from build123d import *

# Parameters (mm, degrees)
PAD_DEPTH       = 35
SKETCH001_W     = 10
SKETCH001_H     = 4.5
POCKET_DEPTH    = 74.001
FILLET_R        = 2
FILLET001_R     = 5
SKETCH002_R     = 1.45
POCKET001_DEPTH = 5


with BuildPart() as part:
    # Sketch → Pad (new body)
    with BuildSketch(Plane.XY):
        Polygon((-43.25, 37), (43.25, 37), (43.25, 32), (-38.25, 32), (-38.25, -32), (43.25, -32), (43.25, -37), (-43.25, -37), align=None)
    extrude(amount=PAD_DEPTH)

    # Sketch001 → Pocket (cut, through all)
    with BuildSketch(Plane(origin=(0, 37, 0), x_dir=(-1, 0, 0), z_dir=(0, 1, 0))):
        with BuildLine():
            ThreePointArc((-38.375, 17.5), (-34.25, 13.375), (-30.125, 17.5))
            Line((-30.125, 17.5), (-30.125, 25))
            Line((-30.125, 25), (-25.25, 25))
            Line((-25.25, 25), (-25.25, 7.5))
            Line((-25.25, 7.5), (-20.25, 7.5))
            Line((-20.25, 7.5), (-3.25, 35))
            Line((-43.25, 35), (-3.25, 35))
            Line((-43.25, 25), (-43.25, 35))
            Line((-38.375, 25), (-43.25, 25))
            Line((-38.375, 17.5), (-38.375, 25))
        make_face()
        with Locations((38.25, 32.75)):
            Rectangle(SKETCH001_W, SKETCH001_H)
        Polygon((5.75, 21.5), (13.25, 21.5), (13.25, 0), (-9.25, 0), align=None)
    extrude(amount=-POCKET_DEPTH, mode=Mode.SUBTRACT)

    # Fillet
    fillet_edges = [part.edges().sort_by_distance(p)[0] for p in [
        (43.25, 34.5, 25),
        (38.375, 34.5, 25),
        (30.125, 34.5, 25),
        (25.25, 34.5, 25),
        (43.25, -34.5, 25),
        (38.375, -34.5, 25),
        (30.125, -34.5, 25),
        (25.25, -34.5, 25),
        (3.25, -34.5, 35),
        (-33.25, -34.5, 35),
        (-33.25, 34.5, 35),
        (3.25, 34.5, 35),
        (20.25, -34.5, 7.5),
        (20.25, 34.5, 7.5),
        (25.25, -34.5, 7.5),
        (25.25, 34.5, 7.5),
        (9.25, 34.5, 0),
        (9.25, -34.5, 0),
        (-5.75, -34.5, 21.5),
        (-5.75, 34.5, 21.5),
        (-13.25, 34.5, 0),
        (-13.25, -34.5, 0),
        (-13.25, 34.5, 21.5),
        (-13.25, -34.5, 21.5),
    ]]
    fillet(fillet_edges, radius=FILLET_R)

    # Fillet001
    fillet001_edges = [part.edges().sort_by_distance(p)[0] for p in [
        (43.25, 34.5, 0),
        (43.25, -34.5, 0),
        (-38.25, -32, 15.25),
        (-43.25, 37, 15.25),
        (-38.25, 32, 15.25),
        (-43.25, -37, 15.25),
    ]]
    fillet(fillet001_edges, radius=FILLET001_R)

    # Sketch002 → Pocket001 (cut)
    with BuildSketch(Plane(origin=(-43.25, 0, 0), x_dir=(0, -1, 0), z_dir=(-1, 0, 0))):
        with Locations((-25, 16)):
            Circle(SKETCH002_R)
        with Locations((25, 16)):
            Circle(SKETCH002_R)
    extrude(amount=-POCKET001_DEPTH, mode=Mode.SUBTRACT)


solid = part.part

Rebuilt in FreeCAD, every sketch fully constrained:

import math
import FreeCAD as App
import Part
import Sketcher

V = App.Vector
Q = App.Units.Quantity


def edges_at(feature, points):
    """Names of the edges that pass closest to the given points."""
    edges = feature.Shape.Edges
    near = lambda p: min(range(len(edges)), key=lambda i: edges[i].distToShape(Part.Vertex(*p))[0])
    return sorted({f"Edge{near(p) + 1}" for p in points})

doc = App.newDocument("Part")
params = doc.addObject("Spreadsheet::Sheet", "Params")
for row, (alias, value) in enumerate([
    ("sketch1_height", "74 mm"),
    ("sketch1_height2", "5 mm"),
    ("sketch1_width", "86.5 mm"),
    ("sketch1_width2", "81.5 mm"),
    ("pad1_length", "35 mm"),
    ("sketch2_width", "5 mm"),
    ("sketch2_width2", "40 mm"),
    ("sketch2_width3", "10 mm"),
    ("sketch2_width4", "7.5 mm"),
    ("sketch2_width5", "22.5 mm"),
    ("fillet_radius", "2 mm"),
    ("fillet2_radius", "5 mm"),
    ("sketch3_diameter", "2.9 mm"),
    ("pocket2_length", "5 mm"),
], start=1):
    params.set(f"A{row}", alias)
    params.set(f"B{row}", "=" + value)
    params.setAlias(f"B{row}", alias)

body = doc.addObject("PartDesign::Body", "Body")

# Sketch on XY plane
sketch1 = body.newObject("Sketcher::SketchObject", "Sketch")
sketch1.AttachmentSupport = (doc.getObject("XY_Plane"), [""])
sketch1.MapMode = "FlatFace"
sketch1.addGeometry([
    Part.LineSegment(V(43, 37, 0), V(-43, 37, 0)),  # 0
    Part.LineSegment(V(-43, 37, 0), V(-43, -37, 0)),  # 1
    Part.LineSegment(V(-43, -37, 0), V(43, -37, 0)),  # 2
    Part.LineSegment(V(43, -37, 0), V(43, -32, 0)),  # 3
    Part.LineSegment(V(43, -32, 0), V(-38, -32, 0)),  # 4
    Part.LineSegment(V(-38, -32, 0), V(-38, 32, 0)),  # 5
    Part.LineSegment(V(-38, 32, 0), V(43, 32, 0)),  # 6
    Part.LineSegment(V(43, 32, 0), V(43, 37, 0)),  # 7
], False)
sketch1.addConstraint([
    Sketcher.Constraint("Coincident", 0, 2, 1, 1),
    Sketcher.Constraint("Coincident", 1, 2, 2, 1),
    Sketcher.Constraint("Coincident", 2, 2, 3, 1),
    Sketcher.Constraint("Coincident", 3, 2, 4, 1),
    Sketcher.Constraint("Coincident", 4, 2, 5, 1),
    Sketcher.Constraint("Coincident", 5, 2, 6, 1),
    Sketcher.Constraint("Coincident", 6, 2, 7, 1),
    Sketcher.Constraint("Coincident", 7, 2, 0, 1),
    Sketcher.Constraint("Horizontal", 0),
    Sketcher.Constraint("Vertical", 1),
    Sketcher.Constraint("Horizontal", 2),
    Sketcher.Constraint("Vertical", 3),
    Sketcher.Constraint("Horizontal", 4),
    Sketcher.Constraint("Vertical", 5),
    Sketcher.Constraint("Horizontal", 6),
    Sketcher.Constraint("Vertical", 7),
    Sketcher.Constraint("Symmetric", 0, 2, 2, 2, -1, 1),
    Sketcher.Constraint("Symmetric", 3, 2, 6, 2, -1),
    Sketcher.Constraint("DistanceY", 1, 2, 1, 1, Q("74 mm")),
    Sketcher.Constraint("DistanceY", 3, 1, 3, 2, Q("5 mm")),
    Sketcher.Constraint("DistanceX", 0, 2, 0, 1, Q("86.5 mm")),
    Sketcher.Constraint("DistanceX", 4, 2, 4, 1, Q("81.5 mm")),
])
sketch1.setExpression("Constraints[18]", "Params.sketch1_height")
sketch1.setExpression("Constraints[19]", "Params.sketch1_height2")
sketch1.setExpression("Constraints[20]", "Params.sketch1_width")
sketch1.setExpression("Constraints[21]", "Params.sketch1_width2")
pad1 = body.newObject("PartDesign::Pad", "Pad")
pad1.Profile = sketch1
pad1.setExpression("Length", "Params.pad1_length")

# Sketch on XZ plane
sketch2 = body.newObject("Sketcher::SketchObject", "Sketch001")
sketch2.AttachmentSupport = (doc.getObject("XZ_Plane"), [""])
sketch2.MapMode = "FlatFace"
sketch2.AttachmentOffset = App.Placement(V(0, 0, -37), App.Rotation())
sketch2.addGeometry([
    Part.ArcOfCircle(Part.Circle(V(34.2, 17.5, 0), V(0, 0, 1), 4.1), math.radians(180), math.radians(360)),  # 0
    Part.LineSegment(V(30.1, 17.5, 0), V(30.1, 25, 0)),  # 1
    Part.LineSegment(V(30.1, 25, 0), V(25.2, 25, 0)),  # 2
    Part.LineSegment(V(25.2, 25, 0), V(25.2, 7.5, 0)),  # 3
    Part.LineSegment(V(25.2, 7.5, 0), V(20.2, 7.5, 0)),  # 4
    Part.LineSegment(V(20.2, 7.5, 0), V(3.2, 35, 0)),  # 5
    Part.LineSegment(V(3.2, 35, 0), V(43.2, 35, 0)),  # 6
    Part.LineSegment(V(43.2, 35, 0), V(43.2, 25, 0)),  # 7
    Part.LineSegment(V(43.2, 25, 0), V(38.4, 25, 0)),  # 8
    Part.LineSegment(V(38.4, 25, 0), V(38.4, 17.5, 0)),  # 9
    Part.LineSegment(V(-33.2, 35, 0), V(-33.2, 30.5, 0)),  # 10
    Part.LineSegment(V(-33.2, 30.5, 0), V(-43.2, 30.5, 0)),  # 11
    Part.LineSegment(V(-43.2, 30.5, 0), V(-43.2, 35, 0)),  # 12
    Part.LineSegment(V(-43.2, 35, 0), V(-33.2, 35, 0)),  # 13
    Part.LineSegment(V(-13.2, 21.5, 0), V(-5.8, 21.5, 0)),  # 14
    Part.LineSegment(V(-5.8, 21.5, 0), V(9.2, 0, 0)),  # 15
    Part.LineSegment(V(9.2, 0, 0), V(-13.2, 0, 0)),  # 16
    Part.LineSegment(V(-13.2, 0, 0), V(-13.2, 21.5, 0)),  # 17
], False)
sketch2.addConstraint([
    Sketcher.Constraint("Tangent", 0, 1, 1, 1),
    Sketcher.Constraint("Coincident", 1, 2, 2, 1),
    Sketcher.Constraint("Coincident", 2, 2, 3, 1),
    Sketcher.Constraint("Coincident", 3, 2, 4, 1),
    Sketcher.Constraint("Coincident", 4, 2, 5, 1),
    Sketcher.Constraint("Coincident", 5, 2, 6, 1),
    Sketcher.Constraint("Coincident", 6, 2, 7, 1),
    Sketcher.Constraint("Coincident", 7, 2, 8, 1),
    Sketcher.Constraint("Coincident", 8, 2, 9, 1),
    Sketcher.Constraint("Tangent", 9, 2, 0, 2),
    Sketcher.Constraint("Coincident", 10, 2, 11, 1),
    Sketcher.Constraint("Coincident", 11, 2, 12, 1),
    Sketcher.Constraint("Coincident", 12, 2, 13, 1),
    Sketcher.Constraint("Coincident", 13, 2, 10, 1),
    Sketcher.Constraint("Coincident", 14, 2, 15, 1),
    Sketcher.Constraint("Coincident", 15, 2, 16, 1),
    Sketcher.Constraint("Coincident", 16, 2, 17, 1),
    Sketcher.Constraint("Coincident", 17, 2, 14, 1),
    Sketcher.Constraint("Vertical", 1),
    Sketcher.Constraint("Horizontal", 2),
    Sketcher.Constraint("Vertical", 3),
    Sketcher.Constraint("Horizontal", 4),
    Sketcher.Constraint("Horizontal", 6),
    Sketcher.Constraint("Vertical", 7),
    Sketcher.Constraint("Horizontal", 8),
    Sketcher.Constraint("Vertical", 9),
    Sketcher.Constraint("Vertical", 10),
    Sketcher.Constraint("Horizontal", 11),
    Sketcher.Constraint("Vertical", 12),
    Sketcher.Constraint("Horizontal", 13),
    Sketcher.Constraint("Horizontal", 14),
    Sketcher.Constraint("Horizontal", 16),
    Sketcher.Constraint("Vertical", 17),
    Sketcher.Constraint("Symmetric", 6, 2, 12, 2, -2),
    Sketcher.Constraint("PointOnObject", 15, 2, -1),
    Sketcher.Constraint("Horizontal", 2, 2, 7, 2),
    Sketcher.Constraint("Equal", 2, 8),
    Sketcher.Constraint("Equal", 14, 1),
    Sketcher.Constraint("Equal", 13, 7),
    Sketcher.Constraint("DistanceX", 4, 2, 4, 1, Q("5 mm")),
    Sketcher.Constraint("DistanceX", 6, 1, 6, 2, Q("40 mm")),
    Sketcher.Constraint("DistanceX", 11, 2, 11, 1, Q("10 mm")),
    Sketcher.Constraint("DistanceX", 14, 1, 14, 2, Q("7.5 mm")),
    Sketcher.Constraint("DistanceX", 16, 2, 16, 1, Q("22.5 mm")),
    Sketcher.Constraint("DistanceY", 3, 2, 3, 1, Q("17.5 mm")),
    Sketcher.Constraint("DistanceY", 10, 2, 10, 1, Q("4.5 mm")),
    Sketcher.Constraint("DistanceY", 17, 1, 17, 2, Q("21.5 mm")),
    Sketcher.Constraint("DistanceY", -1, 1, 1, 2, Q("25 mm")),
    Sketcher.Constraint("Radius", 0, Q("4.125 mm")),
    Sketcher.Constraint("DistanceX", 2, 2, 0, 3, Q("9 mm")),
    Sketcher.Constraint("DistanceX", 14, 2, 5, 2, Q("9 mm")),
    Sketcher.Constraint("DistanceX", 10, 2, 16, 2, Q("20 mm")),
])
sketch2.setExpression("Constraints[39]", "Params.sketch2_width")
sketch2.setExpression("Constraints[40]", "Params.sketch2_width2")
sketch2.setExpression("Constraints[41]", "Params.sketch2_width3")
sketch2.setExpression("Constraints[42]", "Params.sketch2_width4")
sketch2.setExpression("Constraints[43]", "Params.sketch2_width5")
pocket1 = body.newObject("PartDesign::Pocket", "Pocket")
pocket1.Profile = sketch2
pocket1.Type = "ThroughAll"
pocket1.Reversed = True
doc.recompute()

fillet = body.newObject("PartDesign::Fillet", "Fillet")
fillet.Base = (pocket1, edges_at(pocket1, [
    (43.25, 34.5, 25),
    (38.375, 34.5, 25),
    (30.125, 34.5, 25),
    (25.25, 34.5, 25),
    (43.25, -34.5, 25),
    (38.375, -34.5, 25),
    (30.125, -34.5, 25),
    (25.25, -34.5, 25),
    (3.25, -34.5, 35),
    (-33.25, -34.5, 35),
    (-33.25, 34.5, 35),
    (3.25, 34.5, 35),
    (20.25, -34.5, 7.5),
    (20.25, 34.5, 7.5),
    (25.25, -34.5, 7.5),
    (25.25, 34.5, 7.5),
    (9.25, 34.5, 0),
    (9.25, -34.5, 0),
    (-5.75, -34.5, 21.5),
    (-5.75, 34.5, 21.5),
    (-13.25, 34.5, 0),
    (-13.25, -34.5, 0),
    (-13.25, 34.5, 21.5),
    (-13.25, -34.5, 21.5),
]))
fillet.setExpression("Radius", "Params.fillet_radius")
doc.recompute()

fillet2 = body.newObject("PartDesign::Fillet", "Fillet001")
fillet2.Base = (fillet, edges_at(fillet, [
    (43.25, 34.5, 0),
    (43.25, -34.5, 0),
    (-38.25, -32, 15.25),
    (-43.25, 37, 15.25),
    (-38.25, 32, 15.25),
    (-43.25, -37, 15.25),
]))
fillet2.setExpression("Radius", "Params.fillet2_radius")

# Sketch on YZ plane
sketch3 = body.newObject("Sketcher::SketchObject", "Sketch002")
sketch3.AttachmentSupport = (doc.getObject("YZ_Plane"), [""])
sketch3.MapMode = "FlatFace"
sketch3.AttachmentOffset = App.Placement(V(0, 0, -43.25), App.Rotation())
sketch3.addGeometry([
    Part.Circle(V(25, 16, 0), V(0, 0, 1), 1.4),
    Part.Circle(V(-25, 16, 0), V(0, 0, 1), 1.4),
], False)
sketch3.addConstraint([
    Sketcher.Constraint("Equal", 0, 1),
    Sketcher.Constraint("Symmetric", 0, 3, 1, 3, -2),
    Sketcher.Constraint("Diameter", 0, Q("2.9 mm")),
    Sketcher.Constraint("DistanceX", -1, 1, 0, 3, Q("25 mm")),
    Sketcher.Constraint("DistanceY", -1, 1, 0, 3, Q("16 mm")),
])
sketch3.setExpression("Constraints[2]", "Params.sketch3_diameter")
pocket2 = body.newObject("PartDesign::Pocket", "Pocket001")
pocket2.Profile = sketch3
pocket2.setExpression("Length", "Params.pocket2_length")
pocket2.Reversed = True

doc.recompute()
